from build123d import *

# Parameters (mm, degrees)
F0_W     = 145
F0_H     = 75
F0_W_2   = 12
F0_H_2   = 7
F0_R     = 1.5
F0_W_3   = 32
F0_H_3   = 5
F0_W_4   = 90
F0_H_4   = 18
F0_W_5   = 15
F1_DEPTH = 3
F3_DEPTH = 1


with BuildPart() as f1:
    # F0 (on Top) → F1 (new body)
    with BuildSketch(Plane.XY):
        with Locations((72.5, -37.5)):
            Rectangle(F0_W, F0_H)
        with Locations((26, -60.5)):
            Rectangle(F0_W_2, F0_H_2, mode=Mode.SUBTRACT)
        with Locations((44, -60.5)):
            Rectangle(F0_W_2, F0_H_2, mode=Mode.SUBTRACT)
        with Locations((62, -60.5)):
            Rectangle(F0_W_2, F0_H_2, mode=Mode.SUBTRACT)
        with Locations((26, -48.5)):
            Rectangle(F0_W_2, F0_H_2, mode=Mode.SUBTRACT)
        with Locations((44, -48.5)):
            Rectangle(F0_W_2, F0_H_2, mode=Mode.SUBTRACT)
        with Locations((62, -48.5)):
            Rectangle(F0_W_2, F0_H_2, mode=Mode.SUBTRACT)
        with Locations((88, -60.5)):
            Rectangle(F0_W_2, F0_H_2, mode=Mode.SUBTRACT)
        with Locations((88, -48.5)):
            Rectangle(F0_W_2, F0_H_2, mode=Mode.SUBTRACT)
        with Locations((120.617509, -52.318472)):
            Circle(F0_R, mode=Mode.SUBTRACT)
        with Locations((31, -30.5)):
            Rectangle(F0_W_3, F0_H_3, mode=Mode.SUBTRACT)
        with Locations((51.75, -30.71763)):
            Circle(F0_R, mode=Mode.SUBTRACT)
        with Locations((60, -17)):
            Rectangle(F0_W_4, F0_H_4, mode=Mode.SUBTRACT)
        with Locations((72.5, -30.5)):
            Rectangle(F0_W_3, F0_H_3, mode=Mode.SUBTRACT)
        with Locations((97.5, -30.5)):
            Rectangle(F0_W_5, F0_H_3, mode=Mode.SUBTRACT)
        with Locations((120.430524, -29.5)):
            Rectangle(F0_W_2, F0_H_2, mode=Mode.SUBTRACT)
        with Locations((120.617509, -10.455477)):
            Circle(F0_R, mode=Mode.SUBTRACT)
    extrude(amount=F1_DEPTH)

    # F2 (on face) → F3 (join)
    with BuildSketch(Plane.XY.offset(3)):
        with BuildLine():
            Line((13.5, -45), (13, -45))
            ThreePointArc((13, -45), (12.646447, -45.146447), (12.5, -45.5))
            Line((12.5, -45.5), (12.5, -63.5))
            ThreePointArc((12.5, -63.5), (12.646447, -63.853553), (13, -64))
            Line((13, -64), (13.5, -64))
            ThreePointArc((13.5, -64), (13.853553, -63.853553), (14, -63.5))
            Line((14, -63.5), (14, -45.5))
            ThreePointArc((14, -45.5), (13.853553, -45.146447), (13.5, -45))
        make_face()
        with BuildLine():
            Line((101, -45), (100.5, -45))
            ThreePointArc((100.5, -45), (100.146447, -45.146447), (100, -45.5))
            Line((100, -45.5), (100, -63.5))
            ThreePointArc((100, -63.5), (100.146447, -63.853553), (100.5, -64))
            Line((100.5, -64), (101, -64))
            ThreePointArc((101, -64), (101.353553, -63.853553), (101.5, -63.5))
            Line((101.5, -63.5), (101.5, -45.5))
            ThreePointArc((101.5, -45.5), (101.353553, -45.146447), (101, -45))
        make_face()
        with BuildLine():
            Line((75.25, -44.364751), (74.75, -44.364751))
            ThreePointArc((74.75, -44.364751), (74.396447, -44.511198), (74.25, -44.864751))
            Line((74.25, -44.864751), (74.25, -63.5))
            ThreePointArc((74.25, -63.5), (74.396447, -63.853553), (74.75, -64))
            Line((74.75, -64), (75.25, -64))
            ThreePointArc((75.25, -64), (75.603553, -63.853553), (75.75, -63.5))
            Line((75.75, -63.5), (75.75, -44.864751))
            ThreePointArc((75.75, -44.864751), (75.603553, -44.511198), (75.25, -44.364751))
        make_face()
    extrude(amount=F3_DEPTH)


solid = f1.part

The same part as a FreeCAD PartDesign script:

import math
import FreeCAD as App
import Part
import Sketcher

V = App.Vector
Q = App.Units.Quantity

doc = App.newDocument("Part")
body = doc.addObject("PartDesign::Body", "Body")

# Sketch on XY plane
sketch1 = body.newObject("Sketcher::SketchObject", "Sketch")
sketch1.AttachmentSupport = (doc.getObject("XY_Plane"), [""])
sketch1.MapMode = "FlatFace"
sketch1.addGeometry([
    Part.LineSegment(V(0, 0, 0), V(0, -75, 0)),  # 0
    Part.LineSegment(V(0, -75, 0), V(145, -75, 0)),  # 1
    Part.LineSegment(V(145, -75, 0), V(145, 0, 0)),  # 2
    Part.LineSegment(V(145, 0, 0), V(0, 0, 0)),  # 3
    Part.LineSegment(V(32, -64, 0), V(20, -64, 0)),  # 4
    Part.LineSegment(V(20, -64, 0), V(20, -57, 0)),  # 5
    Part.LineSegment(V(20, -57, 0), V(32, -57, 0)),  # 6
    Part.LineSegment(V(32, -57, 0), V(32, -64, 0)),  # 7
    Part.LineSegment(V(50, -64, 0), V(38, -64, 0)),  # 8
    Part.LineSegment(V(38, -64, 0), V(38, -57, 0)),  # 9
    Part.LineSegment(V(38, -57, 0), V(50, -57, 0)),  # 10
    Part.LineSegment(V(50, -57, 0), V(50, -64, 0)),  # 11
    Part.LineSegment(V(68, -64, 0), V(56, -64, 0)),  # 12
    Part.LineSegment(V(56, -64, 0), V(56, -57, 0)),  # 13
    Part.LineSegment(V(56, -57, 0), V(68, -57, 0)),  # 14
    Part.LineSegment(V(68, -57, 0), V(68, -64, 0)),  # 15
    Part.LineSegment(V(32, -52, 0), V(20, -52, 0)),  # 16
    Part.LineSegment(V(20, -52, 0), V(20, -45, 0)),  # 17
    Part.LineSegment(V(20, -45, 0), V(32, -45, 0)),  # 18
    Part.LineSegment(V(32, -45, 0), V(32, -52, 0)),  # 19
    Part.LineSegment(V(50, -52, 0), V(38, -52, 0)),  # 20
    Part.LineSegment(V(38, -52, 0), V(38, -45, 0)),  # 21
    Part.LineSegment(V(38, -45, 0), V(50, -45, 0)),  # 22
    Part.LineSegment(V(50, -45, 0), V(50, -52, 0)),  # 23
    Part.LineSegment(V(68, -52, 0), V(56, -52, 0)),  # 24
    Part.LineSegment(V(56, -52, 0), V(56, -45, 0)),  # 25
    Part.LineSegment(V(56, -45, 0), V(68, -45, 0)),  # 26
    Part.LineSegment(V(68, -45, 0), V(68, -52, 0)),  # 27
    Part.LineSegment(V(94, -64, 0), V(82, -64, 0)),  # 28
    Part.LineSegment(V(82, -64, 0), V(82, -57, 0)),  # 29
    Part.LineSegment(V(82, -57, 0), V(94, -57, 0)),  # 30
    Part.LineSegment(V(94, -57, 0), V(94, -64, 0)),  # 31
    Part.Circle(V(120.6, -52.3, 0), V(0, 0, 1), 1.5),  # 32
    Part.LineSegment(V(94, -52, 0), V(82, -52, 0)),  # 33
    Part.LineSegment(V(82, -52, 0), V(82, -45, 0)),  # 34
    Part.LineSegment(V(82, -45, 0), V(94, -45, 0)),  # 35
    Part.LineSegment(V(94, -45, 0), V(94, -52, 0)),  # 36
    Part.LineSegment(V(47, -33, 0), V(15, -33, 0)),  # 37
    Part.LineSegment(V(15, -33, 0), V(15, -28, 0)),  # 38
    Part.LineSegment(V(15, -28, 0), V(47, -28, 0)),  # 39
    Part.LineSegment(V(47, -28, 0), V(47, -33, 0)),  # 40
    Part.Circle(V(51.8, -30.7, 0), V(0, 0, 1), 1.5),  # 41
    Part.LineSegment(V(105, -26, 0), V(15, -26, 0)),  # 42
    Part.LineSegment(V(15, -26, 0), V(15, -8, 0)),  # 43
    Part.LineSegment(V(15, -8, 0), V(105, -8, 0)),  # 44
    Part.LineSegment(V(105, -8, 0), V(105, -26, 0)),  # 45
    Part.LineSegment(V(88.5, -33, 0), V(56.5, -33, 0)),  # 46
    Part.LineSegment(V(56.5, -33, 0), V(56.5, -28, 0)),  # 47
    Part.LineSegment(V(56.5, -28, 0), V(88.5, -28, 0)),  # 48
    Part.LineSegment(V(88.5, -28, 0), V(88.5, -33, 0)),  # 49
    Part.LineSegment(V(105, -33, 0), V(90, -33, 0)),  # 50
    Part.LineSegment(V(90, -33, 0), V(90, -28, 0)),  # 51
    Part.LineSegment(V(90, -28, 0), V(105, -28, 0)),  # 52
    Part.LineSegment(V(105, -28, 0), V(105, -33, 0)),  # 53
    Part.LineSegment(V(126.4, -33, 0), V(114.4, -33, 0)),  # 54
    Part.LineSegment(V(114.4, -33, 0), V(114.4, -26, 0)),  # 55
    Part.LineSegment(V(114.4, -26, 0), V(126.4, -26, 0)),  # 56
    Part.LineSegment(V(126.4, -26, 0), V(126.4, -33, 0)),  # 57
    Part.Circle(V(120.6, -10.5, 0), V(0, 0, 1), 1.5),  # 58
], False)
sketch1.addConstraint([
    Sketcher.Constraint("Coincident", 0, 2, 1, 1),
    Sketcher.Constraint("Coincident", 1, 2, 2, 1),
    Sketcher.Constraint("Coincident", 2, 2, 3, 1),
    Sketcher.Constraint("Coincident", 3, 2, 0, 1),
    Sketcher.Constraint("Coincident", 4, 2, 5, 1),
    Sketcher.Constraint("Coincident", 5, 2, 6, 1),
    Sketcher.Constraint("Coincident", 6, 2, 7, 1),
    Sketcher.Constraint("Coincident", 7, 2, 4, 1),
    Sketcher.Constraint("Coincident", 8, 2, 9, 1),
    Sketcher.Constraint("Coincident", 9, 2, 10, 1),
    Sketcher.Constraint("Coincident", 10, 2, 11, 1),
    Sketcher.Constraint("Coincident", 11, 2, 8, 1),
    Sketcher.Constraint("Coincident", 12, 2, 13, 1),
    Sketcher.Constraint("Coincident", 13, 2, 14, 1),
    Sketcher.Constraint("Coincident", 14, 2, 15, 1),
    Sketcher.Constraint("Coincident", 15, 2, 12, 1),
    Sketcher.Constraint("Coincident", 16, 2, 17, 1),
    Sketcher.Constraint("Coincident", 17, 2, 18, 1),
    Sketcher.Constraint("Coincident", 18, 2, 19, 1),
    Sketcher.Constraint("Coincident", 19, 2, 16, 1),
    Sketcher.Constraint("Coincident", 20, 2, 21, 1),
    Sketcher.Constraint("Coincident", 21, 2, 22, 1),
    Sketcher.Constraint("Coincident", 22, 2, 23, 1),
    Sketcher.Constraint("Coincident", 23, 2, 20, 1),
    Sketcher.Constraint("Coincident", 24, 2, 25, 1),
    Sketcher.Constraint("Coincident", 25, 2, 26, 1),
    Sketcher.Constraint("Coincident", 26, 2, 27, 1),
    Sketcher.Constraint("Coincident", 27, 2, 24, 1),
    Sketcher.Constraint("Coincident", 28, 2, 29, 1),
    Sketcher.Constraint("Coincident", 29, 2, 30, 1),
    Sketcher.Constraint("Coincident", 30, 2, 31, 1),
    Sketcher.Constraint("Coincident", 31, 2, 28, 1),
    Sketcher.Constraint("Coincident", 33, 2, 34, 1),
    Sketcher.Constraint("Coincident", 34, 2, 35, 1),
    Sketcher.Constraint("Coincident", 35, 2, 36, 1),
    Sketcher.Constraint("Coincident", 36, 2, 33, 1),
    Sketcher.Constraint("Coincident", 37, 2, 38, 1),
    Sketcher.Constraint("Coincident", 38, 2, 39, 1),
    Sketcher.Constraint("Coincident", 39, 2, 40, 1),
    Sketcher.Constraint("Coincident", 40, 2, 37, 1),
    Sketcher.Constraint("Coincident", 42, 2, 43, 1),
    Sketcher.Constraint("Coincident", 43, 2, 44, 1),
    Sketcher.Constraint("Coincident", 44, 2, 45, 1),
    Sketcher.Constraint("Coincident", 45, 2, 42, 1),
    Sketcher.Constraint("Coincident", 46, 2, 47, 1),
    Sketcher.Constraint("Coincident", 47, 2, 48, 1),
    Sketcher.Constraint("Coincident", 48, 2, 49, 1),
    Sketcher.Constraint("Coincident", 49, 2, 46, 1),
    Sketcher.Constraint("Coincident", 50, 2, 51, 1),
    Sketcher.Constraint("Coincident", 51, 2, 52, 1),
    Sketcher.Constraint("Coincident", 52, 2, 53, 1),
    Sketcher.Constraint("Coincident", 53, 2, 50, 1),
    Sketcher.Constraint("Coincident", 54, 2, 55, 1),
    Sketcher.Constraint("Coincident", 55, 2, 56, 1),
    Sketcher.Constraint("Coincident", 56, 2, 57, 1),
    Sketcher.Constraint("Coincident", 57, 2, 54, 1),
    Sketcher.Constraint("Vertical", 0),
    Sketcher.Constraint("Horizontal", 1),
    Sketcher.Constraint("Vertical", 2),
    Sketcher.Constraint("Horizontal", 3),
    Sketcher.Constraint("Horizontal", 4),
    Sketcher.Constraint("Vertical", 5),
    Sketcher.Constraint("Horizontal", 6),
    Sketcher.Constraint("Vertical", 7),
    Sketcher.Constraint("Horizontal", 8),
    Sketcher.Constraint("Vertical", 9),
    Sketcher.Constraint("Horizontal", 10),
    Sketcher.Constraint("Vertical", 11),
    Sketcher.Constraint("Horizontal", 12),
    Sketcher.Constraint("Vertical", 13),
    Sketcher.Constraint("Horizontal", 14),
    Sketcher.Constraint("Vertical", 15),
    Sketcher.Constraint("Horizontal", 16),
    Sketcher.Constraint("Vertical", 17),
    Sketcher.Constraint("Horizontal", 18),
    Sketcher.Constraint("Vertical", 19),
    Sketcher.Constraint("Horizontal", 20),
    Sketcher.Constraint("Vertical", 21),
    Sketcher.Constraint("Horizontal", 22),
    Sketcher.Constraint("Vertical", 23),
    Sketcher.Constraint("Horizontal", 24),
    Sketcher.Constraint("Vertical", 25),
    Sketcher.Constraint("Horizontal", 26),
    Sketcher.Constraint("Vertical", 27),
    Sketcher.Constraint("Horizontal", 28),
    Sketcher.Constraint("Vertical", 29),
    Sketcher.Constraint("Horizontal", 30),
    Sketcher.Constraint("Vertical", 31),
    Sketcher.Constraint("Horizontal", 33),
    Sketcher.Constraint("Vertical", 34),
    Sketcher.Constraint("Horizontal", 35),
    Sketcher.Constraint("Vertical", 36),
    Sketcher.Constraint("Horizontal", 37),
    Sketcher.Constraint("Vertical", 38),
    Sketcher.Constraint("Horizontal", 39),
    Sketcher.Constraint("Vertical", 40),
    Sketcher.Constraint("Horizontal", 42),
    Sketcher.Constraint("Vertical", 43),
    Sketcher.Constraint("Horizontal", 44),
    Sketcher.Constraint("Vertical", 45),
    Sketcher.Constraint("Horizontal", 46),
    Sketcher.Constraint("Vertical", 47),
    Sketcher.Constraint("Horizontal", 48),
    Sketcher.Constraint("Vertical", 49),
    Sketcher.Constraint("Horizontal", 50),
    Sketcher.Constraint("Vertical", 51),
    Sketcher.Constraint("Horizontal", 52),
    Sketcher.Constraint("Vertical", 53),
    Sketcher.Constraint("Horizontal", 54),
    Sketcher.Constraint("Vertical", 55),
    Sketcher.Constraint("Horizontal", 56),
    Sketcher.Constraint("Vertical", 57),
    Sketcher.Constraint("Coincident", 3, 2, -1, 1),
    Sketcher.Constraint("Equal", 32, 41),
    Sketcher.Constraint("Equal", 41, 58),
    Sketcher.Constraint("Horizontal", 7, 2, 8, 2),
    Sketcher.Constraint("Horizontal", 6, 2, 9, 2),
    Sketcher.Constraint("Horizontal", 11, 2, 12, 2),
    Sketcher.Constraint("Horizontal", 10, 2, 13, 2),
    Sketcher.Constraint("Horizontal", 19, 2, 20, 2),
    Sketcher.Constraint("Horizontal", 18, 2, 21, 2),
    Sketcher.Constraint("Horizontal", 23, 2, 24, 2),
    Sketcher.Constraint("Horizontal", 22, 2, 25, 2),
    Sketcher.Constraint("Horizontal", 15, 2, 28, 2),
    Sketcher.Constraint("Horizontal", 14, 2, 29, 2),
    Sketcher.Constraint("Horizontal", 27, 2, 33, 2),
    Sketcher.Constraint("Horizontal", 26, 2, 34, 2),
    Sketcher.Constraint("Horizontal", 40, 2, 46, 2),
    Sketcher.Constraint("Horizontal", 39, 2, 47, 2),
    Sketcher.Constraint("Horizontal", 49, 2, 50, 2),
    Sketcher.Constraint("Horizontal", 48, 2, 51, 2),
    Sketcher.Constraint("Horizontal", 53, 2, 54, 2),
    Sketcher.Constraint("Horizontal", 45, 2, 55, 2),
    Sketcher.Constraint("Vertical", 32, 3, 58, 3),
    Sketcher.Constraint("Vertical", 5, 2, 16, 2),
    Sketcher.Constraint("Vertical", 7, 2, 18, 2),
    Sketcher.Constraint("Vertical", 9, 2, 20, 2),
    Sketcher.Constraint("Vertical", 11, 2, 22, 2),
    Sketcher.Constraint("Vertical", 13, 2, 24, 2),
    Sketcher.Constraint("Vertical", 15, 2, 26, 2),
    Sketcher.Constraint("Vertical", 29, 2, 33, 2),
    Sketcher.Constraint("Vertical", 31, 2, 35, 2),
    Sketcher.Constraint("Vertical", 38, 2, 42, 2),
    Sketcher.Constraint("Vertical", 45, 2, 52, 2),
    Sketcher.Constraint("Equal", 6, 8),
    Sketcher.Constraint("Equal", 10, 12),
    Sketcher.Constraint("Equal", 26, 28),
    Sketcher.Constraint("Equal", 39, 46),
    Sketcher.Constraint("Equal", 35, 54),
    Sketcher.Constraint("Equal", 15, 17),
    Sketcher.Constraint("Equal", 36, 55),
    Sketcher.Constraint("Diameter", 32, Q("3 mm")),
    Sketcher.Constraint("DistanceX", 1, 1, 1, 2, Q("145 mm")),
    Sketcher.Constraint("DistanceX", 4, 2, 4, 1, Q("12 mm")),
    Sketcher.Constraint("DistanceX", 37, 2, 37, 1, Q("32 mm")),
    Sketcher.Constraint("DistanceX", 42, 2, 42, 1, Q("90 mm")),
    Sketcher.Constraint("DistanceX", 50, 2, 50, 1, Q("15 mm")),
    Sketcher.Constraint("DistanceY", 0, 2, 0, 1, Q("75 mm")),
    Sketcher.Constraint("DistanceY", 5, 1, 5, 2, Q("7 mm")),
    Sketcher.Constraint("DistanceY", 38, 1, 38, 2, Q("5 mm")),
    Sketcher.Constraint("DistanceY", 43, 1, 43, 2, Q("18 mm")),
    Sketcher.Constraint("DistanceX", -1, 1, 4, 2, Q("20 mm")),
    Sketcher.Constraint("DistanceY", 4, 2, -1, 1, Q("64 mm")),
    Sketcher.Constraint("DistanceX", -1, 1, 8, 2, Q("38 mm")),
    Sketcher.Constraint("DistanceX", -1, 1, 12, 2, Q("56 mm")),
    Sketcher.Constraint("DistanceY", 16, 2, -1, 1, Q("52 mm")),
    Sketcher.Constraint("DistanceX", -1, 1, 28, 2, Q("82 mm")),
    Sketcher.Constraint("DistanceX", -1, 1, 37, 2, Q("15 mm")),
    Sketcher.Constraint("DistanceY", 37, 2, -1, 1, Q("33 mm")),
    Sketcher.Constraint("DistanceX", -1, 1, 46, 2, Q("56.5 mm")),
    Sketcher.Constraint("DistanceX", -1, 1, 41, 3, Q("51.75 mm")),
    Sketcher.Constraint("DistanceX", -1, 1, 32, 3, Q("120.617509 mm")),
    Sketcher.Constraint("DistanceY", 41, 3, -1, 1, Q("30.71763 mm")),
    Sketcher.Constraint("DistanceY", 32, 3, 41, 3, Q("21.600842 mm")),
    Sketcher.Constraint("DistanceY", 58, 3, -1, 1, Q("10.455477 mm")),
    Sketcher.Constraint("DistanceX", -1, 1, 54, 2, Q("114.430524 mm")),
])
pad1 = body.newObject("PartDesign::Pad", "Pad")
pad1.Profile = sketch1
pad1.Length = 3

# Sketch on XY plane
sketch2 = body.newObject("Sketcher::SketchObject", "Sketch001")
sketch2.AttachmentSupport = (doc.getObject("XY_Plane"), [""])
sketch2.MapMode = "FlatFace"
sketch2.AttachmentOffset = App.Placement(V(0, 0, 3), App.Rotation())
sketch2.addGeometry([
    Part.LineSegment(V(13.5, -45, 0), V(13, -45, 0)),  # 0
    Part.ArcOfCircle(Part.Circle(V(13, -45.5, 0), V(0, 0, 1), 0.5), math.radians(90), math.radians(180)),  # 1
    Part.LineSegment(V(12.5, -45.5, 0), V(12.5, -63.5, 0)),  # 2
    Part.ArcOfCircle(Part.Circle(V(13, -63.5, 0), V(0, 0, 1), 0.5), math.radians(-180), math.radians(-90)),  # 3
    Part.LineSegment(V(13, -64, 0), V(13.5, -64, 0)),  # 4
    Part.ArcOfCircle(Part.Circle(V(13.5, -63.5, 0), V(0, 0, 1), 0.5), math.radians(-90), math.radians(0)),  # 5
    Part.LineSegment(V(14, -63.5, 0), V(14, -45.5, 0)),  # 6
    Part.ArcOfCircle(Part.Circle(V(13.5, -45.5, 0), V(0, 0, 1), 0.5), math.radians(0), math.radians(90)),  # 7
    Part.LineSegment(V(101, -45, 0), V(100.5, -45, 0)),  # 8
    Part.ArcOfCircle(Part.Circle(V(100.5, -45.5, 0), V(0, 0, 1), 0.5), math.radians(90), math.radians(180)),  # 9
    Part.LineSegment(V(100, -45.5, 0), V(100, -63.5, 0)),  # 10
    Part.ArcOfCircle(Part.Circle(V(100.5, -63.5, 0), V(0, 0, 1), 0.5), math.radians(-180), math.radians(-90)),  # 11
    Part.LineSegment(V(100.5, -64, 0), V(101, -64, 0)),  # 12
    Part.ArcOfCircle(Part.Circle(V(101, -63.5, 0), V(0, 0, 1), 0.5), math.radians(-90), math.radians(0)),  # 13
    Part.LineSegment(V(101.5, -63.5, 0), V(101.5, -45.5, 0)),  # 14
    Part.ArcOfCircle(Part.Circle(V(101, -45.5, 0), V(0, 0, 1), 0.5), math.radians(0), math.radians(90)),  # 15
    Part.LineSegment(V(75.2, -44.4, 0), V(74.8, -44.4, 0)),  # 16
    Part.ArcOfCircle(Part.Circle(V(74.8, -44.9, 0), V(0, 0, 1), 0.5), math.radians(90), math.radians(180)),  # 17
    Part.LineSegment(V(74.2, -44.9, 0), V(74.2, -63.5, 0)),  # 18
    Part.ArcOfCircle(Part.Circle(V(74.8, -63.5, 0), V(0, 0, 1), 0.5), math.radians(-180), math.radians(-90)),  # 19
    Part.LineSegment(V(74.8, -64, 0), V(75.2, -64, 0)),  # 20
    Part.ArcOfCircle(Part.Circle(V(75.2, -63.5, 0), V(0, 0, 1), 0.5), math.radians(-90), math.radians(0)),  # 21
    Part.LineSegment(V(75.8, -63.5, 0), V(75.8, -44.9, 0)),  # 22
    Part.ArcOfCircle(Part.Circle(V(75.2, -44.9, 0), V(0, 0, 1), 0.5), math.radians(0), math.radians(90)),  # 23
], False)
sketch2.addConstraint([
    Sketcher.Constraint("Coincident", 0, 2, 1, 1),
    Sketcher.Constraint("Coincident", 1, 2, 2, 1),
    Sketcher.Constraint("Coincident", 2, 2, 3, 1),
    Sketcher.Constraint("Coincident", 3, 2, 4, 1),
    Sketcher.Constraint("Coincident", 4, 2, 5, 1),
    Sketcher.Constraint("Coincident", 5, 2, 6, 1),
    Sketcher.Constraint("Coincident", 6, 2, 7, 1),
    Sketcher.Constraint("Coincident", 7, 2, 0, 1),
    Sketcher.Constraint("Coincident", 8, 2, 9, 1),
    Sketcher.Constraint("Coincident", 9, 2, 10, 1),
    Sketcher.Constraint("Coincident", 10, 2, 11, 1),
    Sketcher.Constraint("Coincident", 11, 2, 12, 1),
    Sketcher.Constraint("Coincident", 12, 2, 13, 1),
    Sketcher.Constraint("Coincident", 13, 2, 14, 1),
    Sketcher.Constraint("Coincident", 14, 2, 15, 1),
    Sketcher.Constraint("Coincident", 15, 2, 8, 1),
    Sketcher.Constraint("Coincident", 16, 2, 17, 1),
    Sketcher.Constraint("Coincident", 17, 2, 18, 1),
    Sketcher.Constraint("Coincident", 18, 2, 19, 1),
    Sketcher.Constraint("Coincident", 19, 2, 20, 1),
    Sketcher.Constraint("Coincident", 20, 2, 21, 1),
    Sketcher.Constraint("Coincident", 21, 2, 22, 1),
    Sketcher.Constraint("Coincident", 22, 2, 23, 1),
    Sketcher.Constraint("Coincident", 23, 2, 16, 1),
    Sketcher.Constraint("Horizontal", 0),
    Sketcher.Constraint("Vertical", 2),
    Sketcher.Constraint("Horizontal", 4),
    Sketcher.Constraint("Vertical", 6),
    Sketcher.Constraint("Horizontal", 8),
    Sketcher.Constraint("Vertical", 10),
    Sketcher.Constraint("Horizontal", 12),
    Sketcher.Constraint("Vertical", 14),
    Sketcher.Constraint("Horizontal", 16),
    Sketcher.Constraint("Vertical", 18),
    Sketcher.Constraint("Horizontal", 20),
    Sketcher.Constraint("Vertical", 22),
    Sketcher.Constraint("Equal", 1, 3),
    Sketcher.Constraint("Equal", 3, 5),
    Sketcher.Constraint("Equal", 5, 7),
    Sketcher.Constraint("Equal", 7, 9),
    Sketcher.Constraint("Equal", 9, 11),
    Sketcher.Constraint("Equal", 11, 13),
    Sketcher.Constraint("Equal", 13, 15),
    Sketcher.Constraint("Equal", 15, 17),
    Sketcher.Constraint("Equal", 17, 19),
    Sketcher.Constraint("Equal", 19, 21),
    Sketcher.Constraint("Equal", 21, 23),
    Sketcher.Constraint("Horizontal", 7, 3, 9, 3),
    Sketcher.Constraint("Horizontal", 5, 3, 11, 3),
    Sketcher.Constraint("Horizontal", 13, 3, 19, 3),
    Sketcher.Constraint("Horizontal", 15, 3, 1, 2),
    Sketcher.Constraint("Horizontal", 21, 3, 2, 2),
    Sketcher.Constraint("Horizontal", 2, 2, 5, 2),
    Sketcher.Constraint("Horizontal", 1, 2, 6, 2),
    Sketcher.Constraint("Horizontal", 6, 2, 9, 2),
    Sketcher.Constraint("Horizontal", 5, 2, 10, 2),
    Sketcher.Constraint("Horizontal", 10, 2, 13, 2),
    Sketcher.Constraint("Horizontal", 9, 2, 14, 2),
    Sketcher.Constraint("Horizontal", 23, 3, 17, 2),
    Sketcher.Constraint("Horizontal", 13, 2, 18, 2),
    Sketcher.Constraint("Horizontal", 18, 2, 21, 2),
    Sketcher.Constraint("Horizontal", 17, 2, 22, 2),
    Sketcher.Constraint("Vertical", 3, 3, 0, 2),
    Sketcher.Constraint("Vertical", 0, 2, 3, 2),
    Sketcher.Constraint("Vertical", 7, 3, 4, 2),
    Sketcher.Constraint("Vertical", 4, 2, 7, 2),
    Sketcher.Constraint("Vertical", 11, 3, 8, 2),
    Sketcher.Constraint("Vertical", 8, 2, 11, 2),
    Sketcher.Constraint("Vertical", 15, 3, 12, 2),
    Sketcher.Constraint("Vertical", 12, 2, 15, 2),
    Sketcher.Constraint("Vertical", 19, 3, 16, 2),
    Sketcher.Constraint("Vertical", 16, 2, 19, 2),
    Sketcher.Constraint("Vertical", 23, 3, 20, 2),
    Sketcher.Constraint("Vertical", 20, 2, 23, 2),
    Sketcher.Constraint("Equal", 4, 8),
    Sketcher.Constraint("Equal", 12, 16),
    Sketcher.Constraint("Radius", 1, Q("0.500001 mm")),
    Sketcher.Constraint("DistanceY", 2, 2, 2, 1, Q("18 mm")),
    Sketcher.Constraint("DistanceX", 0, 2, 0, 1, Q("0.5 mm")),
    Sketcher.Constraint("DistanceX", -1, 1, 1, 3, Q("13.000001 mm")),
    Sketcher.Constraint("DistanceX", -1, 1, 13, 3, Q("100.999999 mm")),
    Sketcher.Constraint("DistanceY", 0, 2, -1, 1, Q("45 mm")),
    Sketcher.Constraint("DistanceX", -1, 1, 17, 3, Q("74.750001 mm")),
    Sketcher.Constraint("DistanceY", 18, 2, 18, 1, Q("18.635249 mm")),
])
pad2 = body.newObject("PartDesign::Pad", "Pad001")
pad2.Profile = sketch2
pad2.Length = 1

doc.recompute()
